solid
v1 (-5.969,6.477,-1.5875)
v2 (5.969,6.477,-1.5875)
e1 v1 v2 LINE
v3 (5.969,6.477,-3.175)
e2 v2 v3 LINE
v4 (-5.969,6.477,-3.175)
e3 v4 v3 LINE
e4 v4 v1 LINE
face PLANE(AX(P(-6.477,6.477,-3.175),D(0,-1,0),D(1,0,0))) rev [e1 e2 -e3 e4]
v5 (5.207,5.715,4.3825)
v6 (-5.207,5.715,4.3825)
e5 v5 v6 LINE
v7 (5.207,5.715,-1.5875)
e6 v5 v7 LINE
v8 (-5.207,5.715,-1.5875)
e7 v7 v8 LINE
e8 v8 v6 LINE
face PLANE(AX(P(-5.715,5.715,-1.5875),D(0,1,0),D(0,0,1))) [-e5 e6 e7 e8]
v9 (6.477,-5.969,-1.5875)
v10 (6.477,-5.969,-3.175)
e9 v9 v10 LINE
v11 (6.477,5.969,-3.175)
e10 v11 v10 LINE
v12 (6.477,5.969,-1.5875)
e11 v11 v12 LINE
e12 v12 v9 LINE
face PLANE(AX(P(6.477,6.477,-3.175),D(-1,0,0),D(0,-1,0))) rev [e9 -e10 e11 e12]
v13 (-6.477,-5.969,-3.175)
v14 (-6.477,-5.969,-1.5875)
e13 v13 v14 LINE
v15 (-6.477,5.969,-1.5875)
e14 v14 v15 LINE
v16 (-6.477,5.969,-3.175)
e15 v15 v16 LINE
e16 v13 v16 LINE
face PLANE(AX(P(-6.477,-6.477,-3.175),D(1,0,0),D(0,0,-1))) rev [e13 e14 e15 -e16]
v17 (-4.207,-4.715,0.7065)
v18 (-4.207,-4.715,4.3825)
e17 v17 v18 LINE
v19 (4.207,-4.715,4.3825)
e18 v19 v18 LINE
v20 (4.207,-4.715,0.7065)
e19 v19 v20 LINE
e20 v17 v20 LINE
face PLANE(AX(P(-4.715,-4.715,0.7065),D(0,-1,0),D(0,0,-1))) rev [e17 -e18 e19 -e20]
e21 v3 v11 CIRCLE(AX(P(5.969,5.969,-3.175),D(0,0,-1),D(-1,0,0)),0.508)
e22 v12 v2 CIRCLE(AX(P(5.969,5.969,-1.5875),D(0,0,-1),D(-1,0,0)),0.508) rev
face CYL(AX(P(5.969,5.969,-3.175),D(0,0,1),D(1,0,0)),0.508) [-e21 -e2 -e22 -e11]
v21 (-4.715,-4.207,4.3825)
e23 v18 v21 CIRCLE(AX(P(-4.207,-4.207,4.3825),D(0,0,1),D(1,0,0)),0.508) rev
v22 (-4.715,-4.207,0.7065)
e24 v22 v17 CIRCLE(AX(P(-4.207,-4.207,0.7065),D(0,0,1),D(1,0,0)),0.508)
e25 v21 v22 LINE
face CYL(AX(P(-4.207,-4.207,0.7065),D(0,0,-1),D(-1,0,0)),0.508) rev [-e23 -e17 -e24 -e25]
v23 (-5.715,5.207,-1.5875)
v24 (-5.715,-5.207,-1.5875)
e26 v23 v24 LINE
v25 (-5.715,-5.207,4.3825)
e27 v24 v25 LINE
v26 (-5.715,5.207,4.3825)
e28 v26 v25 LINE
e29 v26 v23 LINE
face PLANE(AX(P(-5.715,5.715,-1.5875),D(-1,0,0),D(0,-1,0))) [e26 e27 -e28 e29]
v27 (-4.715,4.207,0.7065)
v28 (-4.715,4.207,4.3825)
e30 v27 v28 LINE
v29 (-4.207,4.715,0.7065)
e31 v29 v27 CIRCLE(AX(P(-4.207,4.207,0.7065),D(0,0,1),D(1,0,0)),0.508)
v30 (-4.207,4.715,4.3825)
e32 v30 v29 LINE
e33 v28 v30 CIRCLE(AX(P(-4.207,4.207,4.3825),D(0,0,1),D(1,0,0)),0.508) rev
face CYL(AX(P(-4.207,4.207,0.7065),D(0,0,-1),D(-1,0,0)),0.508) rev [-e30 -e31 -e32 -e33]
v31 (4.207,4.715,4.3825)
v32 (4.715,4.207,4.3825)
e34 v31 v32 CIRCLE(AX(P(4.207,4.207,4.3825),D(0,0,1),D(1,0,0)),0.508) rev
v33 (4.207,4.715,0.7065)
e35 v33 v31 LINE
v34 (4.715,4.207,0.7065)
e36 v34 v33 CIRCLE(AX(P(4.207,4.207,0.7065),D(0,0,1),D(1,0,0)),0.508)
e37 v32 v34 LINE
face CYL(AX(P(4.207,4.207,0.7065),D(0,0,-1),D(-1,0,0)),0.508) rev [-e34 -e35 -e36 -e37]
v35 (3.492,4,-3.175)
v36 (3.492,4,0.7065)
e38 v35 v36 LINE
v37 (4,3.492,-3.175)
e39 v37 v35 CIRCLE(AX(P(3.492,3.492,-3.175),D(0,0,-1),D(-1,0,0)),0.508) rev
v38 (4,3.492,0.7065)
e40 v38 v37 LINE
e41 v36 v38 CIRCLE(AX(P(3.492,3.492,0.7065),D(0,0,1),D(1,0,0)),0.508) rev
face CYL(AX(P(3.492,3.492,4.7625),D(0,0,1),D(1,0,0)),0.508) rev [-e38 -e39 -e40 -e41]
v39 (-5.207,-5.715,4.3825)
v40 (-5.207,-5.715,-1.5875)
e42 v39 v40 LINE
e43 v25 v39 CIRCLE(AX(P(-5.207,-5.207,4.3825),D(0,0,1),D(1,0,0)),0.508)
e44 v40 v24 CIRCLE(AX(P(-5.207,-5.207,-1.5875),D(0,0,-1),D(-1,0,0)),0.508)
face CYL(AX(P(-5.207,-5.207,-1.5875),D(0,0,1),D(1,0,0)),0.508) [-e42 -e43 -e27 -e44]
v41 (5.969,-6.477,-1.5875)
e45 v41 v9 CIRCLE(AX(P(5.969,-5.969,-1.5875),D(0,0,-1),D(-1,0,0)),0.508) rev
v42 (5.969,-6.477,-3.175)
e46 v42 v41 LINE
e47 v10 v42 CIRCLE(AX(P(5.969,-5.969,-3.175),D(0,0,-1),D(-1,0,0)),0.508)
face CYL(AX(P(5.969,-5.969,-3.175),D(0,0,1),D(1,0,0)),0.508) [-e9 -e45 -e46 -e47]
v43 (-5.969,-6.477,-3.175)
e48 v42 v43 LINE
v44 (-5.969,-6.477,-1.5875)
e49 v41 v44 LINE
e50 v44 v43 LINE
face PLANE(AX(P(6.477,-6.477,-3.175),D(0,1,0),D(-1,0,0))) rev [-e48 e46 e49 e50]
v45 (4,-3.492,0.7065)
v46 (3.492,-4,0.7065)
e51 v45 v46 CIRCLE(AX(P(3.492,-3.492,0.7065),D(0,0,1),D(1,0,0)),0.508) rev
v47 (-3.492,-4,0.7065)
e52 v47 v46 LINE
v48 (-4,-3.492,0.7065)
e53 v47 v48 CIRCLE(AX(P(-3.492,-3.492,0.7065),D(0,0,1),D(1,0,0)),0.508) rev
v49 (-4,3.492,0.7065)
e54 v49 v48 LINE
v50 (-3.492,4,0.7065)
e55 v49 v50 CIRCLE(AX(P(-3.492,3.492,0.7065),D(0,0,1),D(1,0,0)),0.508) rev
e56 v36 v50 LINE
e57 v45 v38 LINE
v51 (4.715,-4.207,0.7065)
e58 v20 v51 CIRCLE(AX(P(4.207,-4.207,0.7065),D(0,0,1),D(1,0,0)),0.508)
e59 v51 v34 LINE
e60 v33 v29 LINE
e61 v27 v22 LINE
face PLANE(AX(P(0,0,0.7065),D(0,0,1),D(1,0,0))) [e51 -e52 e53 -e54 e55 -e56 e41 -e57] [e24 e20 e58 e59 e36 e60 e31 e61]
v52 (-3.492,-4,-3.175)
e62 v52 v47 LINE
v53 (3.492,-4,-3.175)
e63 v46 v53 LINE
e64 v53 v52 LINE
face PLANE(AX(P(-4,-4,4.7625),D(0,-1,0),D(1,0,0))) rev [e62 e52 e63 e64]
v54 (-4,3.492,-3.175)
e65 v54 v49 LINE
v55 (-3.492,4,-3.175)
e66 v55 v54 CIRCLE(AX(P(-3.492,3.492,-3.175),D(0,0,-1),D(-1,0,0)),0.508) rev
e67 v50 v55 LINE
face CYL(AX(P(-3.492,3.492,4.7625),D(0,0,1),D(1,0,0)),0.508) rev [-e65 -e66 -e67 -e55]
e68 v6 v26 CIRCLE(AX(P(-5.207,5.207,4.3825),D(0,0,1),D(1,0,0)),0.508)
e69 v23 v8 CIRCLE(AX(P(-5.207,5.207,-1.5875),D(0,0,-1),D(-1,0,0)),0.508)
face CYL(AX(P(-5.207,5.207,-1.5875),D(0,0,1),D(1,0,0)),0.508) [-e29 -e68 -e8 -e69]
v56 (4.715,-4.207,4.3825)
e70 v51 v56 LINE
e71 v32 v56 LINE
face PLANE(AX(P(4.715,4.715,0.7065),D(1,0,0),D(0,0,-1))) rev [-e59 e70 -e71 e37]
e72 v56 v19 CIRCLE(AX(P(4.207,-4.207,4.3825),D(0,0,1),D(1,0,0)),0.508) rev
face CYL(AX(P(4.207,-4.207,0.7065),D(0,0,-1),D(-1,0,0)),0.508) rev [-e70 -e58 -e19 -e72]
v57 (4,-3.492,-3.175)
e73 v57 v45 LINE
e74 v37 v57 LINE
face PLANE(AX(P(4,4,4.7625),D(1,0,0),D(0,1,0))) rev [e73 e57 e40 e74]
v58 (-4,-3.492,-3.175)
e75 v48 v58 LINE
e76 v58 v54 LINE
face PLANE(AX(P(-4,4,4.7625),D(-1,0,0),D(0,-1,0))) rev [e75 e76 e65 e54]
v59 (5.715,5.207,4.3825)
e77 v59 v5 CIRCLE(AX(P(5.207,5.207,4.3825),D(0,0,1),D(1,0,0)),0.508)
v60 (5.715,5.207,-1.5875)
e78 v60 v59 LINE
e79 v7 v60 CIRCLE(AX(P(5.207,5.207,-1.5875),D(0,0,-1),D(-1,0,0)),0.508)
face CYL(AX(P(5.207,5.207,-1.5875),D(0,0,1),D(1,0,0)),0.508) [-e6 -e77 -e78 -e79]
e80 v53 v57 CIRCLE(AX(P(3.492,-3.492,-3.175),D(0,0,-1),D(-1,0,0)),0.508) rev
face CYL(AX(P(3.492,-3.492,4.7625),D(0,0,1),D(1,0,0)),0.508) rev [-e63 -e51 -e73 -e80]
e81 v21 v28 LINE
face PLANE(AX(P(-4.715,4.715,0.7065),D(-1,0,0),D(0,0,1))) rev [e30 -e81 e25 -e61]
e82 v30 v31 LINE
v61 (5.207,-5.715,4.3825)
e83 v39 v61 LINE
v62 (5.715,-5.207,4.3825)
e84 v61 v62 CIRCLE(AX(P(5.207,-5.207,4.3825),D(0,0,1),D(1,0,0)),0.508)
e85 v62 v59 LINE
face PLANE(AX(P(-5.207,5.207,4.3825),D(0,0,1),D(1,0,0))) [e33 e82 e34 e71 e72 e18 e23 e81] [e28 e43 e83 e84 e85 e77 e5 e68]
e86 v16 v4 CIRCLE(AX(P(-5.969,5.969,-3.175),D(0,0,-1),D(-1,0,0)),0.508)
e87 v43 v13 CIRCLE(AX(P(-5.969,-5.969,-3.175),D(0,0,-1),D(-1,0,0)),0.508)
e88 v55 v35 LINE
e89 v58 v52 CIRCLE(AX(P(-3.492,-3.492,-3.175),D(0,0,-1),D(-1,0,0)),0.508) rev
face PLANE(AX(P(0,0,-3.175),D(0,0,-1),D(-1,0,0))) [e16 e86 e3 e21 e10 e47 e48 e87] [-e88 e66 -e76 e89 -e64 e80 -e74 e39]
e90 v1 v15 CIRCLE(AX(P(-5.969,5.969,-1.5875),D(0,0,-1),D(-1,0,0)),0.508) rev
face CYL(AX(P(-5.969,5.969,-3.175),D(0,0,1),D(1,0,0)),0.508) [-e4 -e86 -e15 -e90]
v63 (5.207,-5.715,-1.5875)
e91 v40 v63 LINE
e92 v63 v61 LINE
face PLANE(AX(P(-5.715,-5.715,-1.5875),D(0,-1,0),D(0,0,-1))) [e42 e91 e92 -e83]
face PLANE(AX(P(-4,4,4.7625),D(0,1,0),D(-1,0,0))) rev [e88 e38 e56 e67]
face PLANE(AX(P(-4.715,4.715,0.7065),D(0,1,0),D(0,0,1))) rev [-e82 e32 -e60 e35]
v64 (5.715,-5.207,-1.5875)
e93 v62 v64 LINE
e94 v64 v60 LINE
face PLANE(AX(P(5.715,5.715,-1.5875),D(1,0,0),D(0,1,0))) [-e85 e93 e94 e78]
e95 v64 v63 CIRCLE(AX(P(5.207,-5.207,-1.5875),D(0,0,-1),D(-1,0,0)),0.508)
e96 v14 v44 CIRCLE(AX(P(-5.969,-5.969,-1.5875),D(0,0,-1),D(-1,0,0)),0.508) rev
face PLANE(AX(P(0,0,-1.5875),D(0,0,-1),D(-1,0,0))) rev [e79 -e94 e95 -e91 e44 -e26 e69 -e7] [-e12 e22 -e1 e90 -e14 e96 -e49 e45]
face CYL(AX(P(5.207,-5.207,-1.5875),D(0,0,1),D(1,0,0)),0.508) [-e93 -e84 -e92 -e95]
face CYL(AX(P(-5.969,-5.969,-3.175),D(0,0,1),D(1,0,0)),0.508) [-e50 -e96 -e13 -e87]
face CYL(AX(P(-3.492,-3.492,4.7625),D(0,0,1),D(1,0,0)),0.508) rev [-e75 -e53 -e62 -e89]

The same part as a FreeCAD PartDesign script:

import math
import FreeCAD as App
import Part
import Sketcher
from FreeCAD import Vector
Q = App.Units.Quantity


def edges_at(feature, points):
    """Names of the edges that pass closest to the given points."""
    edges = feature.Shape.Edges
    near = lambda p: min(range(len(edges)), key=lambda i: edges[i].distToShape(Part.Vertex(*p))[0])
    return sorted({f"Edge{near(p) + 1}" for p in points})


def add_polygon(sketch, points):
    """Adds a closed chain of lines whose ends are joined by coincident constraints."""
    first, n = sketch.GeometryCount, len(points)
    for a, b in zip(points, points[1:] + points[:1]):
        sketch.addGeometry(Part.LineSegment(App.Vector(*a, 0), App.Vector(*b, 0)), False)
    for i in range(n):
        sketch.addConstraint(Sketcher.Constraint("Coincident", first + i, 2, first + (i + 1) % n, 1))

doc = App.newDocument("Part")
body = doc.addObject("PartDesign::Body", "Body")

sketch1 = body.newObject("Sketcher::SketchObject", "Sketch")
sketch1.AttachmentSupport = (doc.getObject("XY_Plane"), [""])
sketch1.MapMode = "FlatFace"
add_polygon(sketch1, [(-5.715, 5.715), (-5.715, -5.715), (5.715, -5.715), (5.715, 5.715)])
sketch1.addConstraint(Sketcher.Constraint("Vertical", 0))
sketch1.addConstraint(Sketcher.Constraint("Horizontal", 1))
sketch1.addConstraint(Sketcher.Constraint("Vertical", 2))
sketch1.addConstraint(Sketcher.Constraint("Horizontal", 3))
sketch1.addConstraint(Sketcher.Constraint("Symmetric", 0, 2, 2, 2, -1, 1))
sketch1.addConstraint(Sketcher.Constraint("Equal", 3, 0))
sketch1.addConstraint(Sketcher.Constraint("DistanceX", 1, 1, 1, 2, Q("0.45 in")))
pad1 = body.newObject("PartDesign::Pad", "Pad")
pad1.Profile = sketch1
pad1.Type = "TwoLengths"
pad1.Length = Q("0.1875 in")
pad1.Length2 = Q("0.0625 in")

sketch2 = body.newObject("Sketcher::SketchObject", "Sketch001")
sketch2.AttachmentSupport = (doc.getObject("XY_Plane"), [""])
sketch2.MapMode = "FlatFace"
sketch2.AttachmentOffset = App.Placement(Vector(0, 0, -0.0625 * 25.4), App.Rotation())
add_polygon(sketch2, [(6.477, 6.477), (6.477, -6.477), (-6.477, -6.477), (-6.477, 6.477)])
sketch2.addConstraint(Sketcher.Constraint("Vertical", 0))
sketch2.addConstraint(Sketcher.Constraint("Horizontal", 1))
sketch2.addConstraint(Sketcher.Constraint("Vertical", 2))
sketch2.addConstraint(Sketcher.Constraint("Horizontal", 3))
sketch2.addConstraint(Sketcher.Constraint("Symmetric", 0, 2, 2, 2, -1, 1))
sketch2.addConstraint(Sketcher.Constraint("Equal", 3, 0))
sketch2.addConstraint(Sketcher.Constraint("DistanceX", 1, 2, 1, 1, Q("0.51 in")))
pad2 = body.newObject("PartDesign::Pad", "Pad001")
pad2.Profile = sketch2
pad2.Length = Q("0.0625 in")
pad2.Reversed = True

sketch3 = body.newObject("Sketcher::SketchObject", "Sketch002")
sketch3.AttachmentSupport = (doc.getObject("XY_Plane"), [""])
sketch3.MapMode = "FlatFace"
sketch3.AttachmentOffset = App.Placement(Vector(0, 0, 0.1875 * 25.4), App.Rotation())
add_polygon(sketch3, [(-2.05, 1.75), (-2.05, -1.75), (2.05, -1.75), (2.05, 1.75)])
sketch3.addConstraint(Sketcher.Constraint("Vertical", 0))
sketch3.addConstraint(Sketcher.Constraint("Horizontal", 1))
sketch3.addConstraint(Sketcher.Constraint("Vertical", 2))
sketch3.addConstraint(Sketcher.Constraint("Horizontal", 3))
sketch3.addConstraint(Sketcher.Constraint("Symmetric", 0, 2, 2, 2, -1, 1))
sketch3.addConstraint(Sketcher.Constraint("DistanceX", 1, 1, 1, 2, 4.1))
sketch3.addConstraint(Sketcher.Constraint("DistanceY", 0, 2, 0, 1, 3.5))
pocket1 = body.newObject("PartDesign::Pocket", "Pocket")
pocket1.Profile = sketch3
pocket1.Type = "ThroughAll"

sketch4 = body.newObject("Sketcher::SketchObject", "Sketch003")
sketch4.AttachmentSupport = (doc.getObject("XY_Plane"), [""])
sketch4.MapMode = "FlatFace"
sketch4.AttachmentOffset = App.Placement(Vector(0, 0, -0.125 * 25.4), App.Rotation())
add_polygon(sketch4, [(3.127, 2.377), (3.127, -2.377), (-3.127, -2.377), (-3.127, 2.377)])
sketch4.addConstraint(Sketcher.Constraint("Vertical", 0))
sketch4.addConstraint(Sketcher.Constraint("Horizontal", 1))
sketch4.addConstraint(Sketcher.Constraint("Vertical", 2))
sketch4.addConstraint(Sketcher.Constraint("Horizontal", 3))
sketch4.addConstraint(Sketcher.Constraint("Symmetric", 0, 2, 2, 2, -1, 1))
sketch4.addConstraint(Sketcher.Constraint("DistanceX", 1, 2, 1, 1, 6.254))
sketch4.addConstraint(Sketcher.Constraint("DistanceY", 0, 2, 0, 1, 4.754))
pocket2 = body.newObject("PartDesign::Pocket", "Pocket001")
pocket2.Profile = sketch4
pocket2.Length = 4.15
pocket2.Reversed = True

sketch5 = body.newObject("Sketcher::SketchObject", "Sketch004")
sketch5.AttachmentSupport = (doc.getObject("XY_Plane"), [""])
sketch5.MapMode = "FlatFace"
sketch5.AttachmentOffset = App.Placement(Vector(0, 0, 0.1875 * 25.4), App.Rotation())
add_polygon(sketch5, [(-4.715, 4.715), (-4.715, -4.715), (4.715, -4.715), (4.715, 4.715)])
sketch5.addConstraint(Sketcher.Constraint("Vertical", 0))
sketch5.addConstraint(Sketcher.Constraint("Horizontal", 1))
sketch5.addConstraint(Sketcher.Constraint("Vertical", 2))
sketch5.addConstraint(Sketcher.Constraint("Horizontal", 3))
sketch5.addConstraint(Sketcher.Constraint("Symmetric", 0, 2, 2, 2, -1, 1))
sketch5.addConstraint(Sketcher.Constraint("Equal", 3, 0))
sketch5.addConstraint(Sketcher.Constraint("DistanceX", 1, 1, 1, 2, 9.43))
pocket3 = body.newObject("PartDesign::Pocket", "Pocket002")
pocket3.Profile = sketch5
pocket3.Length = 4.056

sketch6 = body.newObject("Sketcher::SketchObject", "Sketch005")
sketch6.AttachmentSupport = (doc.getObject("XY_Plane"), [""])
sketch6.MapMode = "FlatFace"
sketch6.AttachmentOffset = App.Placement(Vector(0, 0, -0.125 * 25.4), App.Rotation())
add_polygon(sketch6, [(4, 4), (4, -4), (-4, -4), (-4, 4)])
sketch6.addConstraint(Sketcher.Constraint("Vertical", 0))
sketch6.addConstraint(Sketcher.Constraint("Horizontal", 1))
sketch6.addConstraint(Sketcher.Constraint("Vertical", 2))
sketch6.addConstraint(Sketcher.Constraint("Horizontal", 3))
sketch6.addConstraint(Sketcher.Constraint("Symmetric", 0, 2, 2, 2, -1, 1))
sketch6.addConstraint(Sketcher.Constraint("Equal", 3, 0))
sketch6.addConstraint(Sketcher.Constraint("DistanceX", 1, 2, 1, 1, 8.0))
pocket4 = body.newObject("PartDesign::Pocket", "Pocket003")
pocket4.Profile = sketch6
pocket4.Type = "ThroughAll"
pocket4.Reversed = True
doc.recompute()

fillet = body.newObject("PartDesign::Fillet", "Fillet")
fillet.Base = (pocket4, edges_at(pocket4, [
    (4, -4, -1.234),
    (4, 4, -1.234),
    (-4, 4, -1.234),
    (-4, -4, -1.234),
    (-6.477, 6.477, -2.381),
    (6.477, 6.477, -2.381),
    (6.477, -6.477, -2.381),
    (-6.477, -6.477, -2.381),
    (5.715, -5.715, 1.587),
    (-5.715, -5.715, 1.587),
    (-5.715, 5.715, 1.587),
    (5.715, 5.715, 1.587),
    (4.715, 4.715, 2.735),
    (4.715, -4.715, 2.735),
    (-4.715, -4.715, 2.735),
    (-4.715, 4.715, 2.735),
]))
fillet.Radius = Q("0.02 in")

sketch7 = body.newObject("Sketcher::SketchObject", "Sketch006")
sketch7.AttachmentSupport = (doc.getObject("XY_Plane"), [""])
sketch7.MapMode = "FlatFace"
sketch7.AttachmentOffset = App.Placement(Vector(0, 0, 0.1875 * 25.4), App.Rotation())
sketch7.addGeometry(Part.LineSegment(Vector(-5.715, 5.207, 0), Vector(-5.715, -5.207, 0)), False)
sketch7.addGeometry(Part.ArcOfCircle(Part.Circle(Vector(-5.207, -5.207, 0), Vector(0, 0, 1), 0.508), math.radians(180), math.radians(270)), False)
sketch7.addGeometry(Part.LineSegment(Vector(-5.207, -5.715, 0), Vector(5.207, -5.715, 0)), False)
sketch7.addGeometry(Part.ArcOfCircle(Part.Circle(Vector(5.207, -5.207, 0), Vector(0, 0, 1), 0.508), math.radians(-90), math.radians(0)), False)
sketch7.addGeometry(Part.LineSegment(Vector(5.715, -5.207, 0), Vector(5.715, 5.207, 0)), False)
sketch7.addGeometry(Part.ArcOfCircle(Part.Circle(Vector(5.207, 5.207, 0), Vector(0, 0, 1), 0.508), math.radians(0), math.radians(90)), False)
sketch7.addGeometry(Part.LineSegment(Vector(5.207, 5.715, 0), Vector(-5.207, 5.715, 0)), False)
sketch7.addGeometry(Part.ArcOfCircle(Part.Circle(Vector(-5.207, 5.207, 0), Vector(0, 0, 1), 0.508), math.radians(90), math.radians(180)), False)
sketch7.addConstraint(Sketcher.Constraint("Tangent", 0, 2, 1, 1))
sketch7.addConstraint(Sketcher.Constraint("Tangent", 1, 2, 2, 1))
sketch7.addConstraint(Sketcher.Constraint("Tangent", 2, 2, 3, 1))
sketch7.addConstraint(Sketcher.Constraint("Tangent", 3, 2, 4, 1))
sketch7.addConstraint(Sketcher.Constraint("Tangent", 4, 2, 5, 1))
sketch7.addConstraint(Sketcher.Constraint("Tangent", 5, 2, 6, 1))
sketch7.addConstraint(Sketcher.Constraint("Tangent", 6, 2, 7, 1))
sketch7.addConstraint(Sketcher.Constraint("Tangent", 7, 2, 0, 1))
sketch7.addConstraint(Sketcher.Constraint("Vertical", 0))
sketch7.addConstraint(Sketcher.Constraint("Horizontal", 2))
sketch7.addConstraint(Sketcher.Constraint("Vertical", 4))
sketch7.addConstraint(Sketcher.Constraint("Horizontal", 6))
sketch7.addConstraint(Sketcher.Constraint("Equal", 1, 3))
sketch7.addConstraint(Sketcher.Constraint("Equal", 3, 5))
sketch7.addConstraint(Sketcher.Constraint("Equal", 5, 7))
sketch7.addConstraint(Sketcher.Constraint("Symmetric", 1, 3, 5, 3, -1, 1))
sketch7.addConstraint(Sketcher.Constraint("Equal", 6, 0))
sketch7.addConstraint(Sketcher.Constraint("Radius", 1, Q("0.02 in")))
sketch7.addConstraint(Sketcher.Constraint("DistanceX", 2, 1, 2, 2, Q("0.41 in")))
pocket5 = body.newObject("PartDesign::Pocket", "Pocket004")
pocket5.Profile = sketch7
pocket5.Length = 0.38

doc.recompute()
